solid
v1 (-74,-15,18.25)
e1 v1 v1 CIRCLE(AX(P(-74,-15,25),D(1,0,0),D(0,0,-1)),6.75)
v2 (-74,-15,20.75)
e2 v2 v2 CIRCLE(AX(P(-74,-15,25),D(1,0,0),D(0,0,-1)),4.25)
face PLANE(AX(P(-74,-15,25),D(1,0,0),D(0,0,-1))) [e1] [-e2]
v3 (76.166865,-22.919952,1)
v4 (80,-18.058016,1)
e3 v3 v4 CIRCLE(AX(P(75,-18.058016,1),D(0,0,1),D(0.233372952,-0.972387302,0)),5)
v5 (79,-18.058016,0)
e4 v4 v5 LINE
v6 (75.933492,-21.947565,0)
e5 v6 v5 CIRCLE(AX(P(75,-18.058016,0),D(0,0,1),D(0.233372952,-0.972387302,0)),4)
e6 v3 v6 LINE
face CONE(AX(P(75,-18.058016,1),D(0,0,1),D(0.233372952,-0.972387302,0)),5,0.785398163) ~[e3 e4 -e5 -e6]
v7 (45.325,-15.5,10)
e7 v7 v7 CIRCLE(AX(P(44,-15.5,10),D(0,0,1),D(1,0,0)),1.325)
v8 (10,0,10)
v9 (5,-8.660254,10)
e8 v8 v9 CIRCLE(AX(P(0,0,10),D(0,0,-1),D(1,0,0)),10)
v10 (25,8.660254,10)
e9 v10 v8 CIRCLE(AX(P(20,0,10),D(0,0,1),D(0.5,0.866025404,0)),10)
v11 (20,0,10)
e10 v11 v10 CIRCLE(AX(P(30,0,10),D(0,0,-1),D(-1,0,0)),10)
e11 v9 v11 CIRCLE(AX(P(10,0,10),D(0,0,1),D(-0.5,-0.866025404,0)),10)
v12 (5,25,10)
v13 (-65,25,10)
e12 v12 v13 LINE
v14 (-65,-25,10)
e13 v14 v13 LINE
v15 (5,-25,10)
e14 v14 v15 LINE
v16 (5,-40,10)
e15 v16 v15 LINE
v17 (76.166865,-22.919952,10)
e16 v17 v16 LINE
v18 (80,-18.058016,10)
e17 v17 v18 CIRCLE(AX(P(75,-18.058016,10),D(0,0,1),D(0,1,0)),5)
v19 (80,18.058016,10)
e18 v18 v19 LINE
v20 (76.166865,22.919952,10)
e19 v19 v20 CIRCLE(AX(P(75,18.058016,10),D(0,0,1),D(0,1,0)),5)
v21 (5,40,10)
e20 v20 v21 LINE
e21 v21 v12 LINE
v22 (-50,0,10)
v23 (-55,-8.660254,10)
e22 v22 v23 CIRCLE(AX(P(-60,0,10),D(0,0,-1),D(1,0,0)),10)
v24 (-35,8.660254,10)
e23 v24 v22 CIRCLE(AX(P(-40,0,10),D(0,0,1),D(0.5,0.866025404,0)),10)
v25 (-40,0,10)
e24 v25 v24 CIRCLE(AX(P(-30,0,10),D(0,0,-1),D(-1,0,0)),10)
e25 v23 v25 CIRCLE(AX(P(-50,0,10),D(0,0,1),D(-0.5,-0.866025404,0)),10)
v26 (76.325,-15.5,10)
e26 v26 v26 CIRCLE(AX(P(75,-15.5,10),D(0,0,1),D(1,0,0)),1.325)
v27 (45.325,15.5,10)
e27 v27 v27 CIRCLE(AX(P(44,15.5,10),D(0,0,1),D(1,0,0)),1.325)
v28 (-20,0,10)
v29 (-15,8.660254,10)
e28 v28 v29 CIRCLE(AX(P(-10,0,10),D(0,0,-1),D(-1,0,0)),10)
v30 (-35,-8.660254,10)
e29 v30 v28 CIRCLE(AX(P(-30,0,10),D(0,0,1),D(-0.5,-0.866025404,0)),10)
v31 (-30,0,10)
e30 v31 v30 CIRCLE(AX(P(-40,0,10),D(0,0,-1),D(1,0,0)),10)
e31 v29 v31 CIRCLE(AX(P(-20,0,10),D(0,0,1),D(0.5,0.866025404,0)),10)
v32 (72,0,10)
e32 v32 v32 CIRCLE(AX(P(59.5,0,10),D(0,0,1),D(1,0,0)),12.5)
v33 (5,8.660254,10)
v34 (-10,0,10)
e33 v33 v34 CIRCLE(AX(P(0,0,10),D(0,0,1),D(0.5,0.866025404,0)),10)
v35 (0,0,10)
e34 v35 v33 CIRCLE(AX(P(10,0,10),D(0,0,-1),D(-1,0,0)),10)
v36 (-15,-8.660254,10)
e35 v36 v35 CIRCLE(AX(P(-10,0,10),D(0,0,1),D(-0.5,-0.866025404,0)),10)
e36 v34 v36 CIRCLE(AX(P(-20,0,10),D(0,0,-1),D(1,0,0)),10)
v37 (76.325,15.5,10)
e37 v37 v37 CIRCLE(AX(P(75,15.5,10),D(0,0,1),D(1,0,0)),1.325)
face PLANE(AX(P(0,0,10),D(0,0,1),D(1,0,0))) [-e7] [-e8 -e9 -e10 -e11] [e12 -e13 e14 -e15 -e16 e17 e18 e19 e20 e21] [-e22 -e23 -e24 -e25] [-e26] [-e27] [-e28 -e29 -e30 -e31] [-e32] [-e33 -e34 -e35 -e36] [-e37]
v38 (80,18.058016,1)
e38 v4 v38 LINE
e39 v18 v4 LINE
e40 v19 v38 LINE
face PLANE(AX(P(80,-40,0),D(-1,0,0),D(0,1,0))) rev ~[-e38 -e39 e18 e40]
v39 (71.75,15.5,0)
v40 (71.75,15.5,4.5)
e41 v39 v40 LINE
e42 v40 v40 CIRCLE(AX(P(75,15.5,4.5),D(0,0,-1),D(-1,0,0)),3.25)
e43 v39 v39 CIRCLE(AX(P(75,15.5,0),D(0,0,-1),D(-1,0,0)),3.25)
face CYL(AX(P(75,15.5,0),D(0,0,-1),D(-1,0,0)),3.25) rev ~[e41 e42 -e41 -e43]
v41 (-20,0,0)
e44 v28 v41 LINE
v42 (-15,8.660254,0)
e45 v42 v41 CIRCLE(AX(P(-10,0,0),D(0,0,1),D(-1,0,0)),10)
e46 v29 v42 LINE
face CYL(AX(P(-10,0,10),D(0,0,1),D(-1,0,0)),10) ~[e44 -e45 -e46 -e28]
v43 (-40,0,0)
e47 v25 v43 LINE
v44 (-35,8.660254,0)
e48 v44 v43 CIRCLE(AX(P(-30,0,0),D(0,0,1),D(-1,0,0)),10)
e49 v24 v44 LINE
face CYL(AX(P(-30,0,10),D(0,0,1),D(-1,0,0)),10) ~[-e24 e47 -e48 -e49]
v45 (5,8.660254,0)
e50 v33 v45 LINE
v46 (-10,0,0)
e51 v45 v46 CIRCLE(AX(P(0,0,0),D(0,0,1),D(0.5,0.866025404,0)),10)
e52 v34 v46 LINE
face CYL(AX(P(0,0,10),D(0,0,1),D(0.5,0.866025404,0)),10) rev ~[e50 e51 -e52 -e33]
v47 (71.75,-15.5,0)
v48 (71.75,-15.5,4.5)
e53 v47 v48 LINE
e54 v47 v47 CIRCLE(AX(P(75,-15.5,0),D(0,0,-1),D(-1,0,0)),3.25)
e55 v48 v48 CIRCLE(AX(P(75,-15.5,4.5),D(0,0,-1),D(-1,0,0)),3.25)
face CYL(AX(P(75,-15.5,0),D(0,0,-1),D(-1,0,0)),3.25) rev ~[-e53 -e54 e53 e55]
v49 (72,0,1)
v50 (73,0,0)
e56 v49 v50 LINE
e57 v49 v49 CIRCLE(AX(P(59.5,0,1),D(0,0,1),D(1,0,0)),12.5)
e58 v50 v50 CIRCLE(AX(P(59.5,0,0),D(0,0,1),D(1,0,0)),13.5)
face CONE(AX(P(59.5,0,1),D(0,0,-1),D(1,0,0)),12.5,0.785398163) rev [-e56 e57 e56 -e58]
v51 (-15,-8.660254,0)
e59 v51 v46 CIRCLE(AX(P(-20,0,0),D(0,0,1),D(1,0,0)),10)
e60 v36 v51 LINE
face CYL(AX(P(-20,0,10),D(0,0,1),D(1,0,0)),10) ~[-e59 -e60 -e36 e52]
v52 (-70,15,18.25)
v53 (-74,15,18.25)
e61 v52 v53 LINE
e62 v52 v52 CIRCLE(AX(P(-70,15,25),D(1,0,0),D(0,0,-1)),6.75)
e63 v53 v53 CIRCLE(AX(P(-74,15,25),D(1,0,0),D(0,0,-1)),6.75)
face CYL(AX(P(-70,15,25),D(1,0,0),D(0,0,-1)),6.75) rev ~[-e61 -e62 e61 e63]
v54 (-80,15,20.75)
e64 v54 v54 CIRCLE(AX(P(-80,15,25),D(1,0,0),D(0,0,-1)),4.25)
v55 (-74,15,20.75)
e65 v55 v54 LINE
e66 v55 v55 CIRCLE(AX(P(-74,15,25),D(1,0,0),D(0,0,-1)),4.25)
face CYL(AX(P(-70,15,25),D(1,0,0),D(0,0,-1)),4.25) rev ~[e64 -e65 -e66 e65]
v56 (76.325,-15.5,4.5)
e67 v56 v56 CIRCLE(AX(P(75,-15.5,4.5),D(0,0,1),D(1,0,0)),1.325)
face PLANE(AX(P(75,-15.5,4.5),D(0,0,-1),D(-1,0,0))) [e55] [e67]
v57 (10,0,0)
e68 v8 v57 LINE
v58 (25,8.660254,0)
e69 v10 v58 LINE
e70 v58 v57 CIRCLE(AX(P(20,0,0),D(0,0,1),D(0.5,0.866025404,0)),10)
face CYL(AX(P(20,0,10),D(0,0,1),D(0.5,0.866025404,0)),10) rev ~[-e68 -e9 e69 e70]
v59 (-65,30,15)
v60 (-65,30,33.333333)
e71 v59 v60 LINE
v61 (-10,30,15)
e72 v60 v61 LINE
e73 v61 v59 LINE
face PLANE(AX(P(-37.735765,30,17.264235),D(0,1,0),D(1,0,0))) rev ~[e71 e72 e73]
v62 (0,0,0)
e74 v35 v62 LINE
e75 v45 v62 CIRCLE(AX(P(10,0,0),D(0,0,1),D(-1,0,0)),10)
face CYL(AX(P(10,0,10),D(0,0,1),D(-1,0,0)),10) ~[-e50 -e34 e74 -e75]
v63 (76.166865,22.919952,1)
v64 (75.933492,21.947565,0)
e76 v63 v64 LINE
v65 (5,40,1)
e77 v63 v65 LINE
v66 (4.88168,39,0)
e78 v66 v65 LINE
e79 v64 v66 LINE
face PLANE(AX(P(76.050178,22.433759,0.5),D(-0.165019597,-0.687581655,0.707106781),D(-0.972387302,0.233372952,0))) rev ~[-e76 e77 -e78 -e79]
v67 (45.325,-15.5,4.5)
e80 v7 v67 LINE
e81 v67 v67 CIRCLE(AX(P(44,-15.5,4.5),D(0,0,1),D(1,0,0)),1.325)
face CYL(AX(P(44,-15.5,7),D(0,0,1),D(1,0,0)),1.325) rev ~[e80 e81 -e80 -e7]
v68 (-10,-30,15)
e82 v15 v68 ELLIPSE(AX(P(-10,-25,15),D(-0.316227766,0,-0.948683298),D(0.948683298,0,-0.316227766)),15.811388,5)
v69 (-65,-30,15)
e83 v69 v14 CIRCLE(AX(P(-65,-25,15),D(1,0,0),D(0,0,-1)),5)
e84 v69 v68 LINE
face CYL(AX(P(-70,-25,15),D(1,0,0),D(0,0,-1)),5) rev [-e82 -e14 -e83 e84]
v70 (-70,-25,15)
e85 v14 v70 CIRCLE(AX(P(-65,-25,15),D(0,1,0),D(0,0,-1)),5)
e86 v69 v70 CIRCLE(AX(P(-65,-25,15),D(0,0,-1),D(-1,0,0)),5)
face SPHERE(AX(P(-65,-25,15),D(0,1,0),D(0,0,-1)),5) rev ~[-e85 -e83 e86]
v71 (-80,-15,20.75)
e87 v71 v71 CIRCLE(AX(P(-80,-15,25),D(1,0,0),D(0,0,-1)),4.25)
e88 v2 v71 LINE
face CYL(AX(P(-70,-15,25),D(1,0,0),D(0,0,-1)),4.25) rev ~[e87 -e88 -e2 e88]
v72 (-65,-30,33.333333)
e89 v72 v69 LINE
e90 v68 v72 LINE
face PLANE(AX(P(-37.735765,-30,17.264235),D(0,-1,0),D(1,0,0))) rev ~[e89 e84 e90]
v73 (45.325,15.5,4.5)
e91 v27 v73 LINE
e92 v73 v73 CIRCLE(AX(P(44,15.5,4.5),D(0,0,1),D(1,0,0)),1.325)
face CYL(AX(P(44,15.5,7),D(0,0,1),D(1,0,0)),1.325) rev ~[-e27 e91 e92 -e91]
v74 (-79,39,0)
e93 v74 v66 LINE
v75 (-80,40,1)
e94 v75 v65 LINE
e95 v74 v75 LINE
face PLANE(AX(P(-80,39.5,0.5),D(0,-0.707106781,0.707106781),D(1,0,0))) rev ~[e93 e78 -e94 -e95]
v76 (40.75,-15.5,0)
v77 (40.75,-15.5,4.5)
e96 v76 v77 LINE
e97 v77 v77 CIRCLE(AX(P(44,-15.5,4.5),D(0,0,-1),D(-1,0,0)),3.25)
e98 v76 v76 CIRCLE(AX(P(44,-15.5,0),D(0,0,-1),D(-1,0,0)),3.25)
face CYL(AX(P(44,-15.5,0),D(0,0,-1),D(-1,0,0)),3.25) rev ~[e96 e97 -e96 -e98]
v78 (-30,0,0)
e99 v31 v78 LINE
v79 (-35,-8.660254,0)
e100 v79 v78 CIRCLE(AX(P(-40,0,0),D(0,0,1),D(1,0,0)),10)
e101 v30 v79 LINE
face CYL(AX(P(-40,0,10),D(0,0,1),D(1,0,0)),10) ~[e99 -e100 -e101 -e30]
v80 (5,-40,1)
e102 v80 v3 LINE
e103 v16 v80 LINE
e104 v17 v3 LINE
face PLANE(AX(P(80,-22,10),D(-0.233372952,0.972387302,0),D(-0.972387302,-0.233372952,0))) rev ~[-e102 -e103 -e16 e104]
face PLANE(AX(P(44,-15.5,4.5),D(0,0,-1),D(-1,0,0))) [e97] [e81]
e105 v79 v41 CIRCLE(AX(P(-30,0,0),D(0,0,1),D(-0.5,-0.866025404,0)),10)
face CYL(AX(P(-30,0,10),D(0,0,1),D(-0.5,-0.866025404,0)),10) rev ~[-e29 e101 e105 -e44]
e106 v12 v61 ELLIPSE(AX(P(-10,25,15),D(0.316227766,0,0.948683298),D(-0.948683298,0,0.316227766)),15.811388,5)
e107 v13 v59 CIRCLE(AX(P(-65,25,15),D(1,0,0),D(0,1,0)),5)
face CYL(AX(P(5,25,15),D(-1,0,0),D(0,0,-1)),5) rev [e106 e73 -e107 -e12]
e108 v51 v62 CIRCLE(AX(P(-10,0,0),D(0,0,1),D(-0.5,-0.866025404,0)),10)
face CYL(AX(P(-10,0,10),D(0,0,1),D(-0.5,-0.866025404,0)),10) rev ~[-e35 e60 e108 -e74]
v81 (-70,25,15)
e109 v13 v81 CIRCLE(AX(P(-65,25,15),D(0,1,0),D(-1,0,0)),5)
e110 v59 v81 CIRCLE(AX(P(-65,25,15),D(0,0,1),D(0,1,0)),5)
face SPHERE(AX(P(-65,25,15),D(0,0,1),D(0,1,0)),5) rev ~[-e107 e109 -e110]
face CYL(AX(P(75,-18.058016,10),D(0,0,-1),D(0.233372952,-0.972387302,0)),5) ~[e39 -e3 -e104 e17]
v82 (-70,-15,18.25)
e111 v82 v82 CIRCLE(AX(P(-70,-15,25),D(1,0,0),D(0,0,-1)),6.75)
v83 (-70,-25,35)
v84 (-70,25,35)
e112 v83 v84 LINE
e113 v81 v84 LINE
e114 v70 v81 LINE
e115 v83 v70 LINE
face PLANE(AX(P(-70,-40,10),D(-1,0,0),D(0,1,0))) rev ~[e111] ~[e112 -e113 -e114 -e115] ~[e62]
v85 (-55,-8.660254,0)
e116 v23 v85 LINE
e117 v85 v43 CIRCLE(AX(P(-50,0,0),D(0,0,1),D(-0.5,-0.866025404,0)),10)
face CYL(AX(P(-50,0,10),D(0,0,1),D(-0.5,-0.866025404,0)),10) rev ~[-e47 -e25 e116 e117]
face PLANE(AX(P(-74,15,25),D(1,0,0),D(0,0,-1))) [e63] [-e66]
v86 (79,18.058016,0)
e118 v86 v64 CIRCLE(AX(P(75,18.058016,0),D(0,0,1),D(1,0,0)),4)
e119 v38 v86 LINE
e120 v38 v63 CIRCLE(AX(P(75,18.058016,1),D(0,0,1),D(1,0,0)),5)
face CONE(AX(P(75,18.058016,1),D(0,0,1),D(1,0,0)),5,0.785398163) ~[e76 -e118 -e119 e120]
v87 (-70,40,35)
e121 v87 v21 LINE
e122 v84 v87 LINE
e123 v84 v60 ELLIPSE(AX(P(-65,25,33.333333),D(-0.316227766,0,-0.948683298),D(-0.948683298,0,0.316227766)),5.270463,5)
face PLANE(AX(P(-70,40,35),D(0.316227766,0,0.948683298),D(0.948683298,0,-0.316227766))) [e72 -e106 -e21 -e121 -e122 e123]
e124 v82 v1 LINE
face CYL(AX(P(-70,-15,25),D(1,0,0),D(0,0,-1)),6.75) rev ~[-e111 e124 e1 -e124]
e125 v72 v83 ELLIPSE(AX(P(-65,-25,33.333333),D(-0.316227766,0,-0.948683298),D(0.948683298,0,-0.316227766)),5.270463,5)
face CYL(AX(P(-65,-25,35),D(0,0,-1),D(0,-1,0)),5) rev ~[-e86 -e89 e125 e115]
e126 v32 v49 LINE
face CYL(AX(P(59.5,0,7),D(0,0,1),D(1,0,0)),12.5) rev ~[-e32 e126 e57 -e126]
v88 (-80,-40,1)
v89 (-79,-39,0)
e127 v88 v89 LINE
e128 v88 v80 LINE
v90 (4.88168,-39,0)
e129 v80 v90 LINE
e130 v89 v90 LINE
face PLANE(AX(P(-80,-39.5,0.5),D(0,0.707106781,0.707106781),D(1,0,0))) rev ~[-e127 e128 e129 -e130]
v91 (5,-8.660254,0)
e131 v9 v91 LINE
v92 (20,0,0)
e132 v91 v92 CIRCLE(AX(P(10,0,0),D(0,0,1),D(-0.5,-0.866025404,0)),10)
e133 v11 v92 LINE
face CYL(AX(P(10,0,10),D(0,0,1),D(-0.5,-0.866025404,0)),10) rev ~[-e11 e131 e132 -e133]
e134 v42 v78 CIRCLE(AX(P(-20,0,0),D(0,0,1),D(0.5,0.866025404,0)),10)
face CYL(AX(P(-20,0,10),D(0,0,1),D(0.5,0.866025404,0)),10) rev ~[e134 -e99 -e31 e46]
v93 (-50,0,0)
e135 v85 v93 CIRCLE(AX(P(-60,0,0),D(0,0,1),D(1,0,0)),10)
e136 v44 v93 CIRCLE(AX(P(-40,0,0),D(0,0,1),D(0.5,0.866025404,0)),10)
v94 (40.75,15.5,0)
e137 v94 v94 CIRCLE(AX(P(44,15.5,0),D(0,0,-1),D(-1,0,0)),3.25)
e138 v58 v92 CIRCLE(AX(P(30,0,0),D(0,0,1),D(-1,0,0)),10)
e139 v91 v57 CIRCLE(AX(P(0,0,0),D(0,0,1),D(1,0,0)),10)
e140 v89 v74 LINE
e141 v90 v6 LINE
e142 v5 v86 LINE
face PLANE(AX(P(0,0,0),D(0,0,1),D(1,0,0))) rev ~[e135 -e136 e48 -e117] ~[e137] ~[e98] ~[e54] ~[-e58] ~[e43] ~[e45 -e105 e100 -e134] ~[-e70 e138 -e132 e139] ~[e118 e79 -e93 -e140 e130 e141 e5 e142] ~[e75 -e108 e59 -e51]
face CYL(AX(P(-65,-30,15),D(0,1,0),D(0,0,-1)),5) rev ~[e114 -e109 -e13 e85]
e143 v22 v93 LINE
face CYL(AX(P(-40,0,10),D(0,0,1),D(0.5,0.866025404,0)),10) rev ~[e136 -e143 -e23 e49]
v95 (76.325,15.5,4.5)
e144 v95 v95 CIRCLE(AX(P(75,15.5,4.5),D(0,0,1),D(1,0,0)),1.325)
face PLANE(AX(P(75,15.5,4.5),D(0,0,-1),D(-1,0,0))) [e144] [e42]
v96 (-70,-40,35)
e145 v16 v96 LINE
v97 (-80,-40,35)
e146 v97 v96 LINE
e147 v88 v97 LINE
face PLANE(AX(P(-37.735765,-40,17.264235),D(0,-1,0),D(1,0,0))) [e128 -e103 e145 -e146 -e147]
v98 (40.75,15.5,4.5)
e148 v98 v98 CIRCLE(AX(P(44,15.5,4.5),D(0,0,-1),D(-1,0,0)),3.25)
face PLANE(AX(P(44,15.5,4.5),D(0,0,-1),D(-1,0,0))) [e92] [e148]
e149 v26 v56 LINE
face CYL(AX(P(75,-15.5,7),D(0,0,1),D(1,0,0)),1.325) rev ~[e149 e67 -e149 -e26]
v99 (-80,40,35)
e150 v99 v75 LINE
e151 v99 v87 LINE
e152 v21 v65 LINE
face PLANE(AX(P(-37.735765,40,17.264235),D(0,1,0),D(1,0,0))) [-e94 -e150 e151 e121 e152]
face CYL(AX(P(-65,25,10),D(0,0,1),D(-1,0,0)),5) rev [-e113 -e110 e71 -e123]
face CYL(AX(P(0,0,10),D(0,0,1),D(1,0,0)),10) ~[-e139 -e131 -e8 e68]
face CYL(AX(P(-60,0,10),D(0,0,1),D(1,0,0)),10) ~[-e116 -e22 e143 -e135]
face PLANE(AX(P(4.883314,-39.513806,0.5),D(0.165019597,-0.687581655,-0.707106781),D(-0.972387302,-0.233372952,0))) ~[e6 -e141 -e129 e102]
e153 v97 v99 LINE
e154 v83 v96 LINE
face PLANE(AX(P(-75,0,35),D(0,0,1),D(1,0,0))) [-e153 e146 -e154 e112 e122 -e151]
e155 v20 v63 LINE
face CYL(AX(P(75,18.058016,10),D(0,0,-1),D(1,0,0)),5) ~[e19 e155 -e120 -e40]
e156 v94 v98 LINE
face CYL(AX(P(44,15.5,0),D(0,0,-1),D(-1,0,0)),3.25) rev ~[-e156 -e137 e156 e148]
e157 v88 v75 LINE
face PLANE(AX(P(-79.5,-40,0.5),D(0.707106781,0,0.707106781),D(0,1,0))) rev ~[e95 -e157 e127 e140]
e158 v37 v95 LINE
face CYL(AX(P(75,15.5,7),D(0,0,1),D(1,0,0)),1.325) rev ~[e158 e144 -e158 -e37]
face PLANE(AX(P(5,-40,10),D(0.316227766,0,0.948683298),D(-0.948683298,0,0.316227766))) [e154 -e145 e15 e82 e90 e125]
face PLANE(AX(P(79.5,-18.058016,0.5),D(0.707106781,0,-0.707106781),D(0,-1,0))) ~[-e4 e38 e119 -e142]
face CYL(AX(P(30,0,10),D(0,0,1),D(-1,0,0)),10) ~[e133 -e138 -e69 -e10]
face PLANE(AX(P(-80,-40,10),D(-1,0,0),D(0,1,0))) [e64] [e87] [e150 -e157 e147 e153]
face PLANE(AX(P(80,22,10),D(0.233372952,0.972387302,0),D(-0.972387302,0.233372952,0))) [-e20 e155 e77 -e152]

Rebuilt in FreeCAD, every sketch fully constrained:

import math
import FreeCAD as App
import Part
import Sketcher


def edges_at(feature, points):
    """Names of the edges that pass closest to the given points."""
    edges = feature.Shape.Edges
    near = lambda p: min(range(len(edges)), key=lambda i: edges[i].distToShape(Part.Vertex(*p))[0])
    return sorted({f"Edge{near(p) + 1}" for p in points})

doc = App.newDocument("Part")
body = doc.addObject("PartDesign::Body", "Body")

# Sketch on XY plane
sketch1 = body.newObject("Sketcher::SketchObject", "Sketch")
sketch1.AttachmentSupport = (doc.getObject("XY_Plane"), [""])
sketch1.MapMode = "FlatFace"
sketch1.addGeometry(Part.LineSegment(App.Vector(-80, 40, 0), App.Vector(-80, -40, 0)), False)
sketch1.addGeometry(Part.LineSegment(App.Vector(-80, -40, 0), App.Vector(80, -40, 0)), False)
sketch1.addGeometry(Part.LineSegment(App.Vector(80, -40, 0), App.Vector(80, 40, 0)), False)
sketch1.addGeometry(Part.LineSegment(App.Vector(80, 40, 0), App.Vector(-80, 40, 0)), False)
sketch1.addConstraint(Sketcher.Constraint("Coincident", 0, 2, 1, 1))
sketch1.addConstraint(Sketcher.Constraint("Coincident", 1, 2, 2, 1))
sketch1.addConstraint(Sketcher.Constraint("Coincident", 2, 2, 3, 1))
sketch1.addConstraint(Sketcher.Constraint("Coincident", 3, 2, 0, 1))
sketch1.addConstraint(Sketcher.Constraint("Vertical", 0))
sketch1.addConstraint(Sketcher.Constraint("Horizontal", 1))
sketch1.addConstraint(Sketcher.Constraint("Vertical", 2))
sketch1.addConstraint(Sketcher.Constraint("Horizontal", 3))
sketch1.addConstraint(Sketcher.Constraint("Symmetric", 0, 2, 2, 2, -1, 1))
sketch1.addConstraint(Sketcher.Constraint("DistanceX", 1, 1, 1, 2, 160.0))
sketch1.addConstraint(Sketcher.Constraint("DistanceY", 0, 2, 0, 1, 80.0))
pad1 = body.newObject("PartDesign::Pad", "Pad")
pad1.Profile = sketch1
pad1.Length = 10

# Sketch on XY plane
sketch2 = body.newObject("Sketcher::SketchObject", "Sketch001")
sketch2.AttachmentSupport = (doc.getObject("XY_Plane"), [""])
sketch2.MapMode = "FlatFace"
sketch2.AttachmentOffset = App.Placement(App.Vector(0, 0, 10), App.Rotation())
sketch2.addGeometry(Part.Circle(App.Vector(44, 15.5, 0), App.Vector(0, 0, 1), 1.325), False)
sketch2.addGeometry(Part.Circle(App.Vector(75, 15.5, 0), App.Vector(0, 0, 1), 1.325), False)
sketch2.addGeometry(Part.Circle(App.Vector(44, -15.5, 0), App.Vector(0, 0, 1), 1.325), False)
sketch2.addGeometry(Part.Circle(App.Vector(75, -15.5, 0), App.Vector(0, 0, 1), 1.325), False)
sketch2.addGeometry(Part.Circle(App.Vector(59.5, 0, 0), App.Vector(0, 0, 1), 12.5), False)
sketch2.addConstraint(Sketcher.Constraint("Equal", 0, 1))
sketch2.addConstraint(Sketcher.Constraint("Equal", 1, 2))
sketch2.addConstraint(Sketcher.Constraint("Equal", 2, 3))
sketch2.addConstraint(Sketcher.Constraint("Symmetric", 0, 3, 2, 3, -1))
sketch2.addConstraint(Sketcher.Constraint("Symmetric", 1, 3, 3, 3, -1))
sketch2.addConstraint(Sketcher.Constraint("PointOnObject", 4, 3, -1))
sketch2.addConstraint(Sketcher.Constraint("Horizontal", 0, 3, 1, 3))
sketch2.addConstraint(Sketcher.Constraint("Diameter", 4, 25.0))
sketch2.addConstraint(Sketcher.Constraint("Diameter", 0, 2.65))
sketch2.addConstraint(Sketcher.Constraint("DistanceX", -1, 1, 0, 3, 44.0))
sketch2.addConstraint(Sketcher.Constraint("DistanceX", -1, 1, 1, 3, 75.0))
sketch2.addConstraint(Sketcher.Constraint("DistanceY", 2, 3, 0, 3, 31.0))
sketch2.addConstraint(Sketcher.Constraint("DistanceX", -1, 1, 4, 3, 59.5))
pocket1 = body.newObject("PartDesign::Pocket", "Pocket")
pocket1.Profile = sketch2
pocket1.Length = 3

# Sketch on XY plane
sketch3 = body.newObject("Sketcher::SketchObject", "Sketch002")
sketch3.AttachmentSupport = (doc.getObject("XY_Plane"), [""])
sketch3.MapMode = "FlatFace"
sketch3.AttachmentOffset = App.Placement(App.Vector(0, 0, 7), App.Rotation())
sketch3.addGeometry(Part.Circle(App.Vector(75, -15.5, 0), App.Vector(0, 0, 1), 1.325), False)
sketch3.addConstraint(Sketcher.Constraint("Diameter", 0, 2.65))
sketch3.addConstraint(Sketcher.Constraint("DistanceX", -1, 1, 0, 3, 75.0))
sketch3.addConstraint(Sketcher.Constraint("DistanceY", 0, 3, -1, 1, 15.5))
pocket2 = body.newObject("PartDesign::Pocket", "Pocket001")
pocket2.Profile = sketch3
pocket2.Type = "UpToFirst"

# Sketch on XY plane
sketch4 = body.newObject("Sketcher::SketchObject", "Sketch003")
sketch4.AttachmentSupport = (doc.getObject("XY_Plane"), [""])
sketch4.MapMode = "FlatFace"
sketch4.AttachmentOffset = App.Placement(App.Vector(0, 0, 7), App.Rotation())
sketch4.addGeometry(Part.Circle(App.Vector(44, -15.5, 0), App.Vector(0, 0, 1), 1.325), False)
sketch4.addConstraint(Sketcher.Constraint("Diameter", 0, 2.65))
sketch4.addConstraint(Sketcher.Constraint("DistanceX", -1, 1, 0, 3, 44.0))
sketch4.addConstraint(Sketcher.Constraint("DistanceY", 0, 3, -1, 1, 15.5))
pocket3 = body.newObject("PartDesign::Pocket", "Pocket002")
pocket3.Profile = sketch4
pocket3.Type = "UpToFirst"

# Sketch on XY plane
sketch5 = body.newObject("Sketcher::SketchObject", "Sketch004")
sketch5.AttachmentSupport = (doc.getObject("XY_Plane"), [""])
sketch5.MapMode = "FlatFace"
sketch5.AttachmentOffset = App.Placement(App.Vector(0, 0, 7), App.Rotation())
sketch5.addGeometry(Part.Circle(App.Vector(75, 15.5, 0), App.Vector(0, 0, 1), 1.325), False)
sketch5.addConstraint(Sketcher.Constraint("Diameter", 0, 2.65))
sketch5.addConstraint(Sketcher.Constraint("DistanceX", -1, 1, 0, 3, 75.0))
sketch5.addConstraint(Sketcher.Constraint("DistanceY", -1, 1, 0, 3, 15.5))
pocket4 = body.newObject("PartDesign::Pocket", "Pocket003")
pocket4.Profile = sketch5
pocket4.Type = "UpToFirst"

# Sketch on XY plane
sketch6 = body.newObject("Sketcher::SketchObject", "Sketch005")
sketch6.AttachmentSupport = (doc.getObject("XY_Plane"), [""])
sketch6.MapMode = "FlatFace"
sketch6.AttachmentOffset = App.Placement(App.Vector(0, 0, 7), App.Rotation())
sketch6.addGeometry(Part.Circle(App.Vector(44, 15.5, 0), App.Vector(0, 0, 1), 1.325), False)
sketch6.addConstraint(Sketcher.Constraint("Diameter", 0, 2.65))
sketch6.addConstraint(Sketcher.Constraint("DistanceX", -1, 1, 0, 3, 44.0))
sketch6.addConstraint(Sketcher.Constraint("DistanceY", -1, 1, 0, 3, 15.5))
pocket5 = body.newObject("PartDesign::Pocket", "Pocket004")
pocket5.Profile = sketch6
pocket5.Type = "UpToFirst"

# Sketch on XY plane
sketch7 = body.newObject("Sketcher::SketchObject", "Sketch006")
sketch7.AttachmentSupport = (doc.getObject("XY_Plane"), [""])
sketch7.MapMode = "FlatFace"
sketch7.AttachmentOffset = App.Placement(App.Vector(0, 0, 7), App.Rotation())
sketch7.addGeometry(Part.Circle(App.Vector(59.5, 0, 0), App.Vector(0, 0, 1), 12.5), False)
sketch7.addConstraint(Sketcher.Constraint("PointOnObject", 0, 3, -1))
sketch7.addConstraint(Sketcher.Constraint("Diameter", 0, 25.0))
sketch7.addConstraint(Sketcher.Constraint("DistanceX", -1, 1, 0, 3, 59.5))
pocket6 = body.newObject("PartDesign::Pocket", "Pocket005")
pocket6.Profile = sketch7
pocket6.Type = "UpToFirst"

# Sketch on XY plane
sketch8 = body.newObject("Sketcher::SketchObject", "Sketch007")
sketch8.AttachmentSupport = (doc.getObject("XY_Plane"), [""])
sketch8.MapMode = "FlatFace"
sketch8.AttachmentOffset = App.Placement(App.Vector(0, 0, 10), App.Rotation())
sketch8.addGeometry(Part.LineSegment(App.Vector(-80, 40, 0), App.Vector(-80, -40, 0)), False)
sketch8.addGeometry(Part.LineSegment(App.Vector(-80, -40, 0), App.Vector(-70, -40, 0)), False)
sketch8.addGeometry(Part.LineSegment(App.Vector(-70, -40, 0), App.Vector(-70, 40, 0)), False)
sketch8.addGeometry(Part.LineSegment(App.Vector(-70, 40, 0), App.Vector(-80, 40, 0)), False)
sketch8.addConstraint(Sketcher.Constraint("Coincident", 0, 2, 1, 1))
sketch8.addConstraint(Sketcher.Constraint("Coincident", 1, 2, 2, 1))
sketch8.addConstraint(Sketcher.Constraint("Coincident", 2, 2, 3, 1))
sketch8.addConstraint(Sketcher.Constraint("Coincident", 3, 2, 0, 1))
sketch8.addConstraint(Sketcher.Constraint("Vertical", 0))
sketch8.addConstraint(Sketcher.Constraint("Horizontal", 1))
sketch8.addConstraint(Sketcher.Constraint("Vertical", 2))
sketch8.addConstraint(Sketcher.Constraint("Horizontal", 3))
sketch8.addConstraint(Sketcher.Constraint("DistanceX", 1, 1, 1, 2, 10.0))
sketch8.addConstraint(Sketcher.Constraint("DistanceY", 0, 2, 0, 1, 80.0))
sketch8.addConstraint(Sketcher.Constraint("DistanceX", 0, 2, -1, 1, 80.0))
sketch8.addConstraint(Sketcher.Constraint("DistanceY", 0, 2, -1, 1, 40.0))
pad2 = body.newObject("PartDesign::Pad", "Pad001")
pad2.Profile = sketch8
pad2.Length = 25

# Sketch on XZ plane
sketch9 = body.newObject("Sketcher::SketchObject", "Sketch008")
sketch9.AttachmentSupport = (doc.getObject("XZ_Plane"), [""])
sketch9.MapMode = "FlatFace"
sketch9.AttachmentOffset = App.Placement(App.Vector(0, 0, -40), App.Rotation())
sketch9.addGeometry(Part.LineSegment(App.Vector(-70, 35, 0), App.Vector(5, 10, 0)), False)
sketch9.addGeometry(Part.LineSegment(App.Vector(5, 10, 0), App.Vector(-70, 10, 0)), False)
sketch9.addGeometry(Part.LineSegment(App.Vector(-70, 10, 0), App.Vector(-70, 35, 0)), False)
sketch9.addConstraint(Sketcher.Constraint("Coincident", 0, 2, 1, 1))
sketch9.addConstraint(Sketcher.Constraint("Coincident", 1, 2, 2, 1))
sketch9.addConstraint(Sketcher.Constraint("Coincident", 2, 2, 0, 1))
sketch9.addConstraint(Sketcher.Constraint("Horizontal", 1))
sketch9.addConstraint(Sketcher.Constraint("Vertical", 2))
sketch9.addConstraint(Sketcher.Constraint("DistanceX", 1, 2, 1, 1, 75.0))
sketch9.addConstraint(Sketcher.Constraint("DistanceY", 2, 1, 2, 2, 25.0))
sketch9.addConstraint(Sketcher.Constraint("DistanceX", -1, 1, 0, 2, 5.0))
sketch9.addConstraint(Sketcher.Constraint("DistanceY", -1, 1, 0, 2, 10.0))
pad3 = body.newObject("PartDesign::Pad", "Pad002")
pad3.Profile = sketch9
pad3.Length = 10

# Sketch on XZ plane
sketch10 = body.newObject("Sketcher::SketchObject", "Sketch009")
sketch10.AttachmentSupport = (doc.getObject("XZ_Plane"), [""])
sketch10.MapMode = "FlatFace"
sketch10.AttachmentOffset = App.Placement(App.Vector(0, 0, 40), App.Rotation())
sketch10.addGeometry(Part.LineSegment(App.Vector(-70, 35, 0), App.Vector(-70, 10, 0)), False)
sketch10.addGeometry(Part.LineSegment(App.Vector(-70, 10, 0), App.Vector(5, 10, 0)), False)
sketch10.addGeometry(Part.LineSegment(App.Vector(5, 10, 0), App.Vector(-70, 35, 0)), False)
sketch10.addConstraint(Sketcher.Constraint("Coincident", 0, 2, 1, 1))
sketch10.addConstraint(Sketcher.Constraint("Coincident", 1, 2, 2, 1))
sketch10.addConstraint(Sketcher.Constraint("Coincident", 2, 2, 0, 1))
sketch10.addConstraint(Sketcher.Constraint("Vertical", 0))
sketch10.addConstraint(Sketcher.Constraint("Horizontal", 1))
sketch10.addConstraint(Sketcher.Constraint("DistanceX", 1, 1, 1, 2, 75.0))
sketch10.addConstraint(Sketcher.Constraint("DistanceY", 0, 2, 0, 1, 25.0))
sketch10.addConstraint(Sketcher.Constraint("DistanceX", 0, 2, -1, 1, 70.0))
sketch10.addConstraint(Sketcher.Constraint("DistanceY", -1, 1, 0, 2, 10.0))
pad4 = body.newObject("PartDesign::Pad", "Pad003")
pad4.Profile = sketch10
pad4.Length = 10
pad4.Reversed = True

# Sketch on XY plane
sketch11 = body.newObject("Sketcher::SketchObject", "Sketch010")
sketch11.AttachmentSupport = (doc.getObject("XY_Plane"), [""])
sketch11.MapMode = "FlatFace"
sketch11.AttachmentOffset = App.Placement(App.Vector(0, 0, 10), App.Rotation())
sketch11.addGeometry(Part.ArcOfCircle(Part.Circle(App.Vector(10, 0, 0), App.Vector(0, 0, 1), 10), math.radians(-120), math.radians(0)), False)
sketch11.addGeometry(Part.ArcOfCircle(Part.Circle(App.Vector(30, 0, 0), App.Vector(0, 0, 1), 10), math.radians(120), math.radians(180)), False)
sketch11.addGeometry(Part.ArcOfCircle(Part.Circle(App.Vector(20, 0, 0), App.Vector(0, 0, 1), 10), math.radians(60), math.radians(180)), False)
sketch11.addGeometry(Part.ArcOfCircle(Part.Circle(App.Vector(0, 0, 0), App.Vector(0, 0, 1), 10), math.radians(-60), math.radians(0)), False)
sketch11.addConstraint(Sketcher.Constraint("Tangent", 0, 2, 1, 2))
sketch11.addConstraint(Sketcher.Constraint("Coincident", 1, 1, 2, 1))
sketch11.addConstraint(Sketcher.Constraint("Tangent", 2, 2, 3, 2))
sketch11.addConstraint(Sketcher.Constraint("Coincident", 3, 1, 0, 1))
sketch11.addConstraint(Sketcher.Constraint("Coincident", 3, 3, -1, 1))
sketch11.addConstraint(Sketcher.Constraint("Coincident", 0, 2, 2, 3))
sketch11.addConstraint(Sketcher.Constraint("Coincident", 2, 2, 0, 3))
sketch11.addConstraint(Sketcher.Constraint("Equal", 0, 1))
sketch11.addConstraint(Sketcher.Constraint("Equal", 2, 3))
sketch11.addConstraint(Sketcher.Constraint("PointOnObject", 0, 3, -1))
sketch11.addConstraint(Sketcher.Constraint("Radius", 0, 10.0))
pocket7 = body.newObject("PartDesign::Pocket", "Pocket006")
pocket7.Profile = sketch11
pocket7.Type = "UpToFirst"

# Sketch on XY plane
sketch12 = body.newObject("Sketcher::SketchObject", "Sketch011")
sketch12.AttachmentSupport = (doc.getObject("XY_Plane"), [""])
sketch12.MapMode = "FlatFace"
sketch12.AttachmentOffset = App.Placement(App.Vector(0, 0, 10), App.Rotation())
sketch12.addGeometry(Part.ArcOfCircle(Part.Circle(App.Vector(10, 0, 0), App.Vector(0, 0, 1), 10), math.radians(120), math.radians(180)), False)
sketch12.addGeometry(Part.ArcOfCircle(Part.Circle(App.Vector(0, 0, 0), App.Vector(0, 0, 1), 10), math.radians(60), math.radians(180)), False)
sketch12.addGeometry(Part.ArcOfCircle(Part.Circle(App.Vector(-20, 0, 0), App.Vector(0, 0, 1), 10), math.radians(-60), math.radians(0)), False)
sketch12.addGeometry(Part.ArcOfCircle(Part.Circle(App.Vector(-10, 0, 0), App.Vector(0, 0, 1), 10), math.radians(-120), math.radians(0)), False)
sketch12.addConstraint(Sketcher.Constraint("Coincident", 0, 1, 1, 1))
sketch12.addConstraint(Sketcher.Constraint("Tangent", 1, 2, 2, 2))
sketch12.addConstraint(Sketcher.Constraint("Coincident", 2, 1, 3, 1))
sketch12.addConstraint(Sketcher.Constraint("Tangent", 3, 2, 0, 2))
sketch12.addConstraint(Sketcher.Constraint("Coincident", 1, 3, -1, 1))
sketch12.addConstraint(Sketcher.Constraint("Coincident", 3, 2, -1, 1))
sketch12.addConstraint(Sketcher.Constraint("Coincident", 1, 2, 3, 3))
sketch12.addConstraint(Sketcher.Constraint("Equal", 0, 1))
sketch12.addConstraint(Sketcher.Constraint("Equal", 1, 2))
sketch12.addConstraint(Sketcher.Constraint("PointOnObject", 0, 3, -1))
sketch12.addConstraint(Sketcher.Constraint("Radius", 0, 10.0))
pocket8 = body.newObject("PartDesign::Pocket", "Pocket007")
pocket8.Profile = sketch12
pocket8.Type = "UpToFirst"

# Sketch on XY plane
sketch13 = body.newObject("Sketcher::SketchObject", "Sketch012")
sketch13.AttachmentSupport = (doc.getObject("XY_Plane"), [""])
sketch13.MapMode = "FlatFace"
sketch13.AttachmentOffset = App.Placement(App.Vector(0, 0, 10), App.Rotation())
sketch13.addGeometry(Part.ArcOfCircle(Part.Circle(App.Vector(-10, 0, 0), App.Vector(0, 0, 1), 10), math.radians(120), math.radians(180)), False)
sketch13.addGeometry(Part.ArcOfCircle(Part.Circle(App.Vector(-20, 0, 0), App.Vector(0, 0, 1), 10), math.radians(60), math.radians(180)), False)
sketch13.addGeometry(Part.ArcOfCircle(Part.Circle(App.Vector(-40, 0, 0), App.Vector(0, 0, 1), 10), math.radians(-60), math.radians(0)), False)
sketch13.addGeometry(Part.ArcOfCircle(Part.Circle(App.Vector(-30, 0, 0), App.Vector(0, 0, 1), 10), math.radians(-120), math.radians(0)), False)
sketch13.addConstraint(Sketcher.Constraint("Coincident", 0, 1, 1, 1))
sketch13.addConstraint(Sketcher.Constraint("Tangent", 1, 2, 2, 2))
sketch13.addConstraint(Sketcher.Constraint("Coincident", 2, 1, 3, 1))
sketch13.addConstraint(Sketcher.Constraint("Tangent", 3, 2, 0, 2))
sketch13.addConstraint(Sketcher.Constraint("Coincident", 1, 2, 3, 3))
sketch13.addConstraint(Sketcher.Constraint("Coincident", 3, 2, 1, 3))
sketch13.addConstraint(Sketcher.Constraint("Equal", 0, 1))
sketch13.addConstraint(Sketcher.Constraint("Equal", 1, 2))
sketch13.addConstraint(Sketcher.Constraint("PointOnObject", 0, 3, -1))
sketch13.addConstraint(Sketcher.Constraint("PointOnObject", 1, 3, -1))
sketch13.addConstraint(Sketcher.Constraint("Radius", 0, 10.0))
sketch13.addConstraint(Sketcher.Constraint("DistanceX", 0, 3, -1, 1, 10.0))
pocket9 = body.newObject("PartDesign::Pocket", "Pocket008")
pocket9.Profile = sketch13
pocket9.Type = "UpToFirst"

# Sketch on XY plane
sketch14 = body.newObject("Sketcher::SketchObject", "Sketch013")
sketch14.AttachmentSupport = (doc.getObject("XY_Plane"), [""])
sketch14.MapMode = "FlatFace"
sketch14.AttachmentOffset = App.Placement(App.Vector(0, 0, 10), App.Rotation())
sketch14.addGeometry(Part.ArcOfCircle(Part.Circle(App.Vector(-30, 0, 0), App.Vector(0, 0, 1), 10), math.radians(120), math.radians(180)), False)
sketch14.addGeometry(Part.ArcOfCircle(Part.Circle(App.Vector(-40, 0, 0), App.Vector(0, 0, 1), 10), math.radians(60), math.radians(180)), False)
sketch14.addGeometry(Part.ArcOfCircle(Part.Circle(App.Vector(-60, 0, 0), App.Vector(0, 0, 1), 10), math.radians(-60), math.radians(0)), False)
sketch14.addGeometry(Part.ArcOfCircle(Part.Circle(App.Vector(-50, 0, 0), App.Vector(0, 0, 1), 10), math.radians(-120), math.radians(0)), False)
sketch14.addConstraint(Sketcher.Constraint("Coincident", 0, 1, 1, 1))
sketch14.addConstraint(Sketcher.Constraint("Tangent", 1, 2, 2, 2))
sketch14.addConstraint(Sketcher.Constraint("Coincident", 2, 1, 3, 1))
sketch14.addConstraint(Sketcher.Constraint("Tangent", 3, 2, 0, 2))
sketch14.addConstraint(Sketcher.Constraint("Coincident", 1, 2, 3, 3))
sketch14.addConstraint(Sketcher.Constraint("Coincident", 3, 2, 1, 3))
sketch14.addConstraint(Sketcher.Constraint("Equal", 0, 1))
sketch14.addConstraint(Sketcher.Constraint("Equal", 1, 2))
sketch14.addConstraint(Sketcher.Constraint("PointOnObject", 0, 3, -1))
sketch14.addConstraint(Sketcher.Constraint("PointOnObject", 1, 3, -1))
sketch14.addConstraint(Sketcher.Constraint("Radius", 0, 10.0))
sketch14.addConstraint(Sketcher.Constraint("DistanceX", 0, 3, -1, 1, 30.0))
pocket10 = body.newObject("PartDesign::Pocket", "Pocket009")
pocket10.Profile = sketch14
pocket10.Type = "UpToFirst"

# Sketch on XY plane
sketch15 = body.newObject("Sketcher::SketchObject", "Sketch014")
sketch15.AttachmentSupport = (doc.getObject("XY_Plane"), [""])
sketch15.MapMode = "FlatFace"
sketch15.AttachmentOffset = App.Placement(App.Vector(0, 0, 10), App.Rotation())
sketch15.addGeometry(Part.LineSegment(App.Vector(5, 40, 0), App.Vector(80, 22, 0)), False)
sketch15.addGeometry(Part.LineSegment(App.Vector(80, 22, 0), App.Vector(80, 40, 0)), False)
sketch15.addGeometry(Part.LineSegment(App.Vector(80, 40, 0), App.Vector(5, 40, 0)), False)
sketch15.addGeometry(Part.LineSegment(App.Vector(80, -40, 0), App.Vector(80, -22, 0)), False)
sketch15.addGeometry(Part.LineSegment(App.Vector(80, -22, 0), App.Vector(5, -40, 0)), False)
sketch15.addGeometry(Part.LineSegment(App.Vector(5, -40, 0), App.Vector(80, -40, 0)), False)
sketch15.addConstraint(Sketcher.Constraint("Coincident", 0, 2, 1, 1))
sketch15.addConstraint(Sketcher.Constraint("Coincident", 1, 2, 2, 1))
sketch15.addConstraint(Sketcher.Constraint("Coincident", 2, 2, 0, 1))
sketch15.addConstraint(Sketcher.Constraint("Coincident", 3, 2, 4, 1))
sketch15.addConstraint(Sketcher.Constraint("Coincident", 4, 2, 5, 1))
sketch15.addConstraint(Sketcher.Constraint("Coincident", 5, 2, 3, 1))
sketch15.addConstraint(Sketcher.Constraint("Vertical", 1))
sketch15.addConstraint(Sketcher.Constraint("Horizontal", 2))
sketch15.addConstraint(Sketcher.Constraint("Vertical", 3))
sketch15.addConstraint(Sketcher.Constraint("Horizontal", 5))
sketch15.addConstraint(Sketcher.Constraint("Symmetric", 0, 2, 3, 2, -1))
sketch15.addConstraint(Sketcher.Constraint("Symmetric", 2, 2, 4, 2, -1))
sketch15.addConstraint(Sketcher.Constraint("DistanceX", 2, 2, 2, 1, 75.0))
sketch15.addConstraint(Sketcher.Constraint("DistanceY", 1, 1, 1, 2, 18.0))
sketch15.addConstraint(Sketcher.Constraint("DistanceX", -1, 1, 0, 2, 80.0))
sketch15.addConstraint(Sketcher.Constraint("DistanceY", -1, 1, 0, 2, 22.0))
pocket11 = body.newObject("PartDesign::Pocket", "Pocket010")
pocket11.Profile = sketch15
pocket11.Length = 10
doc.recompute()

fillet = body.newObject("PartDesign::Fillet", "Fillet")
fillet.Base = (pocket11, edges_at(pocket11, [
    (-70, 30, 22.5),
    (-32.5, 30, 10),
    (-70, 0, 10),
    (-32.5, -30, 10),
    (-70, -30, 22.5),
]))
fillet.Radius = 5

# Sketch on XY plane
sketch16 = body.newObject("Sketcher::SketchObject", "Sketch015")
sketch16.AttachmentSupport = (doc.getObject("XY_Plane"), [""])
sketch16.MapMode = "FlatFace"
sketch16.addGeometry(Part.Circle(App.Vector(75, 15.5, 0), App.Vector(0, 0, 1), 3.25), False)
sketch16.addGeometry(Part.Circle(App.Vector(44, 15.5, 0), App.Vector(0, 0, 1), 3.25), False)
sketch16.addGeometry(Part.Circle(App.Vector(44, -15.5, 0), App.Vector(0, 0, 1), 3.25), False)
sketch16.addGeometry(Part.Circle(App.Vector(75, -15.5, 0), App.Vector(0, 0, 1), 3.25), False)
sketch16.addConstraint(Sketcher.Constraint("Equal", 0, 1))
sketch16.addConstraint(Sketcher.Constraint("Equal", 1, 2))
sketch16.addConstraint(Sketcher.Constraint("Equal", 2, 3))
sketch16.addConstraint(Sketcher.Constraint("Symmetric", 1, 3, 2, 3, -1))
sketch16.addConstraint(Sketcher.Constraint("Symmetric", 0, 3, 3, 3, -1))
sketch16.addConstraint(Sketcher.Constraint("Horizontal", 0, 3, 1, 3))
sketch16.addConstraint(Sketcher.Constraint("Diameter", 0, 6.5))
sketch16.addConstraint(Sketcher.Constraint("DistanceX", -1, 1, 0, 3, 75.0))
sketch16.addConstraint(Sketcher.Constraint("DistanceX", -1, 1, 1, 3, 44.0))
sketch16.addConstraint(Sketcher.Constraint("DistanceY", 2, 3, 1, 3, 31.0))
pocket12 = body.newObject("PartDesign::Pocket", "Pocket011")
pocket12.Profile = sketch16
pocket12.Length = 4.5
pocket12.Reversed = True

# Sketch on YZ plane
sketch17 = body.newObject("Sketcher::SketchObject", "Sketch016")
sketch17.AttachmentSupport = (doc.getObject("YZ_Plane"), [""])
sketch17.MapMode = "FlatFace"
sketch17.AttachmentOffset = App.Placement(App.Vector(0, 0, -70), App.Rotation())
sketch17.addGeometry(Part.Circle(App.Vector(15, 25, 0), App.Vector(0, 0, 1), 4.25), False)
sketch17.addConstraint(Sketcher.Constraint("Diameter", 0, 8.5))
sketch17.addConstraint(Sketcher.Constraint("DistanceX", -1, 1, 0, 3, 15.0))
sketch17.addConstraint(Sketcher.Constraint("DistanceY", -1, 1, 0, 3, 25.0))
pocket13 = body.newObject("PartDesign::Pocket", "Pocket012")
pocket13.Profile = sketch17
pocket13.Type = "UpToFirst"

# Sketch on YZ plane
sketch18 = body.newObject("Sketcher::SketchObject", "Sketch017")
sketch18.AttachmentSupport = (doc.getObject("YZ_Plane"), [""])
sketch18.MapMode = "FlatFace"
sketch18.AttachmentOffset = App.Placement(App.Vector(0, 0, -70), App.Rotation())
sketch18.addGeometry(Part.Circle(App.Vector(-15, 25, 0), App.Vector(0, 0, 1), 4.25), False)
sketch18.addConstraint(Sketcher.Constraint("Diameter", 0, 8.5))
sketch18.addConstraint(Sketcher.Constraint("DistanceX", 0, 3, -1, 1, 15.0))
sketch18.addConstraint(Sketcher.Constraint("DistanceY", -1, 1, 0, 3, 25.0))
pocket14 = body.newObject("PartDesign::Pocket", "Pocket013")
pocket14.Profile = sketch18
pocket14.Type = "UpToFirst"

# Sketch on YZ plane
sketch19 = body.newObject("Sketcher::SketchObject", "Sketch018")
sketch19.AttachmentSupport = (doc.getObject("YZ_Plane"), [""])
sketch19.MapMode = "FlatFace"
sketch19.AttachmentOffset = App.Placement(App.Vector(0, 0, -70), App.Rotation())
sketch19.addGeometry(Part.Circle(App.Vector(15, 25, 0), App.Vector(0, 0, 1), 6.75), False)
sketch19.addGeometry(Part.Circle(App.Vector(-15, 25, 0), App.Vector(0, 0, 1), 6.75), False)
sketch19.addConstraint(Sketcher.Constraint("Equal", 0, 1))
sketch19.addConstraint(Sketcher.Constraint("Symmetric", 0, 3, 1, 3, -2))
sketch19.addConstraint(Sketcher.Constraint("Diameter", 0, 13.5))
sketch19.addConstraint(Sketcher.Constraint("DistanceX", -1, 1, 0, 3, 15.0))
sketch19.addConstraint(Sketcher.Constraint("DistanceY", -1, 1, 0, 3, 25.0))
pocket15 = body.newObject("PartDesign::Pocket", "Pocket014")
pocket15.Profile = sketch19
pocket15.Length = 4
doc.recompute()

fillet2 = body.newObject("PartDesign::Fillet", "Fillet001")
fillet2.Base = (pocket15, edges_at(pocket15, [(80, 22, 5), (80, -22, 5)]))
fillet2.Radius = 5
doc.recompute()

chamfer = body.newObject("PartDesign::Chamfer", "Chamfer")
chamfer.Base = (fillet2, edges_at(fillet2, [
    (-37.5, 40, 0),
    (40.583, 31.46, 0),
    (40.583, -31.46, 0),
    (80, 0, 0),
    (78.926, 21.154, 0),
    (78.926, -21.154, 0),
    (47, 0, 0),
    (-37.5, -40, 0),
    (-80, 0, 0),
]))
chamfer.Size = 1

doc.recompute()
